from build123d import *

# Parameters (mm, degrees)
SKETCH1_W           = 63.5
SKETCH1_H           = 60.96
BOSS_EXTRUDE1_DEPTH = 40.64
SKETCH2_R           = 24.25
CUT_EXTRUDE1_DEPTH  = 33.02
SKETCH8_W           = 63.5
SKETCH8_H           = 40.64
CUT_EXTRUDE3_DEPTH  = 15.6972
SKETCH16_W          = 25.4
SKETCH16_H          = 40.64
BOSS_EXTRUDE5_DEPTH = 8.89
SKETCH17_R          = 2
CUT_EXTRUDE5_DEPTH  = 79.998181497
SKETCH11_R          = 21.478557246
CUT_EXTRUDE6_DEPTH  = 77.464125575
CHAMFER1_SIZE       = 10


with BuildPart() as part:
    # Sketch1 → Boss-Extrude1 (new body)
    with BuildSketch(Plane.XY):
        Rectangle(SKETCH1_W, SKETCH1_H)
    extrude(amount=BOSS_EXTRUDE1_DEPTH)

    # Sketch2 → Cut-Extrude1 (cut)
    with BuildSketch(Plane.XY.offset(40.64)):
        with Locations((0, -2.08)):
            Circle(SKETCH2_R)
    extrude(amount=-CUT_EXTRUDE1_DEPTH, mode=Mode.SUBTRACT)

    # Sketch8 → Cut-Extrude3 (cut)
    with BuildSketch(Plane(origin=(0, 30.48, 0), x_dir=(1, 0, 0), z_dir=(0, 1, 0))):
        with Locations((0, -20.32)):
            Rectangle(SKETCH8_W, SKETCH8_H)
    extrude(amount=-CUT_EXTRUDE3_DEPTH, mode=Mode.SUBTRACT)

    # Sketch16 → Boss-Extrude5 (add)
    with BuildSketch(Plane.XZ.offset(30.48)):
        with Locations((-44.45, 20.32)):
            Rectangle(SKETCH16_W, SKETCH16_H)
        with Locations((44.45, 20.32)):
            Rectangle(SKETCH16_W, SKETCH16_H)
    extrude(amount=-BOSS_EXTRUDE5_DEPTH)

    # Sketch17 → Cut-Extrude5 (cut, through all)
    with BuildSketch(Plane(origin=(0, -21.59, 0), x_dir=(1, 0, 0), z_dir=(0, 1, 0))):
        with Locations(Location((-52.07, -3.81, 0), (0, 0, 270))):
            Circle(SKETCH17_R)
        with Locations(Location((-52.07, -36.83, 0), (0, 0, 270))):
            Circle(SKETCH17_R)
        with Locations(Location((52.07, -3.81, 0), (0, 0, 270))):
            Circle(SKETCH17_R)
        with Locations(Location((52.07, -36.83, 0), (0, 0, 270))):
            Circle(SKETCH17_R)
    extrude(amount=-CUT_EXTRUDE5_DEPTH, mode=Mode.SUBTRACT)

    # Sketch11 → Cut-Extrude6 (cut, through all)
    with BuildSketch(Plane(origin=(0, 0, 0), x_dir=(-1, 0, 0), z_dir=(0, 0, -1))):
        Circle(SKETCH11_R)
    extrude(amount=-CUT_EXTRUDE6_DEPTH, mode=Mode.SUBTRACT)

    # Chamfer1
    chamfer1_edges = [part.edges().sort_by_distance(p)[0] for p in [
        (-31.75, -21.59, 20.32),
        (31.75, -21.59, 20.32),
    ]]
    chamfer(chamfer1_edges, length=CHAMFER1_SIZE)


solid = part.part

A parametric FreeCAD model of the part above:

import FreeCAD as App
import Part
import Sketcher
Q = App.Units.Quantity


def edges_at(feature, points):
    """Names of the edges that pass closest to the given points."""
    edges = feature.Shape.Edges
    near = lambda p: min(range(len(edges)), key=lambda i: edges[i].distToShape(Part.Vertex(*p))[0])
    return sorted({f"Edge{near(p) + 1}" for p in points})


def add_polygon(sketch, points):
    """Adds a closed chain of lines whose ends are joined by coincident constraints."""
    first, n = sketch.GeometryCount, len(points)
    for a, b in zip(points, points[1:] + points[:1]):
        sketch.addGeometry(Part.LineSegment(App.Vector(*a, 0), App.Vector(*b, 0)), False)
    for i in range(n):
        sketch.addConstraint(Sketcher.Constraint("Coincident", first + i, 2, first + (i + 1) % n, 1))

doc = App.newDocument("Part")
body = doc.addObject("PartDesign::Body", "Body")

sketch1 = doc.addObject("Sketcher::SketchObject", "Sketch")
body.addObject(sketch1)
sketch1.AttachmentSupport = (doc.XY_Plane, [""])
sketch1.MapMode = "FlatFace"
add_polygon(sketch1, [(-32, 30), (-32, -30), (32, -30), (32, 30)])
sketch1.addConstraint([
    Sketcher.Constraint("Vertical", 0),
    Sketcher.Constraint("Horizontal", 1),
    Sketcher.Constraint("Vertical", 2),
    Sketcher.Constraint("Horizontal", 3),
    Sketcher.Constraint("Symmetric", 0, 2, 2, 2, -1, 1),
    Sketcher.Constraint("DistanceX", 1, 1, 1, 2, Q("2.5 in")),
    Sketcher.Constraint("DistanceY", 0, 2, 0, 1, Q("2.4 in")),
])
pad1 = doc.addObject("PartDesign::Pad", "Pad")
body.addObject(pad1)
pad1.Profile = sketch1
pad1.Length = Q("1.6 in")

sketch2 = doc.addObject("Sketcher::SketchObject", "Sketch001")
body.addObject(sketch2)
sketch2.AttachmentSupport = (doc.XY_Plane, [""])
sketch2.MapMode = "FlatFace"
sketch2.AttachmentOffset = App.Placement(App.Vector(0, 0, 1.6 * 25.4), App.Rotation())
sketch2.addGeometry(Part.Circle(App.Vector(0, -2, 0), App.Vector(0, 0, 1), 24), False)
sketch2.addConstraint([
    Sketcher.Constraint("PointOnObject", 0, 3, -2),
    Sketcher.Constraint("Diameter", 0, Q("48.5 mm")),
    Sketcher.Constraint("DistanceY", 0, 3, -1, 1, Q("2.08 mm")),
])
pocket1 = doc.addObject("PartDesign::Pocket", "Pocket")
body.addObject(pocket1)
pocket1.Profile = sketch2
pocket1.Length = Q("1.3 in")

sketch3 = doc.addObject("Sketcher::SketchObject", "Sketch002")
body.addObject(sketch3)
sketch3.AttachmentSupport = (doc.XZ_Plane, [""])
sketch3.MapMode = "FlatFace"
sketch3.AttachmentOffset = App.Placement(App.Vector(0, 0, -1.2 * 25.4), App.Rotation())
add_polygon(sketch3, [(-32, 0), (-32, 41), (32, 41), (32, 0)])
sketch3.addConstraint([
    Sketcher.Constraint("Vertical", 0),
    Sketcher.Constraint("Horizontal", 1),
    Sketcher.Constraint("Vertical", 2),
    Sketcher.Constraint("Horizontal", 3),
    Sketcher.Constraint("Symmetric", 2, 2, 3, 2, -1, 1),
    Sketcher.Constraint("DistanceX", 1, 1, 1, 2, Q("2.5 in")),
    Sketcher.Constraint("DistanceY", 0, 1, 0, 2, Q("1.6 in")),
])
pocket2 = doc.addObject("PartDesign::Pocket", "Pocket001")
body.addObject(pocket2)
pocket2.Profile = sketch3
pocket2.Length = Q("0.618 in")
pocket2.Reversed = True

sketch4 = doc.addObject("Sketcher::SketchObject", "Sketch003")
body.addObject(sketch4)
sketch4.AttachmentSupport = (doc.XZ_Plane, [""])
sketch4.MapMode = "FlatFace"
sketch4.AttachmentOffset = App.Placement(App.Vector(0, 0, 1.2 * 25.4), App.Rotation())
add_polygon(sketch4, [(-57, 41), (-57, 0), (-32, 0), (-32, 41)])
add_polygon(sketch4, [(32, 41), (32, 0), (57, 0), (57, 41)])
sketch4.addConstraint([
    Sketcher.Constraint("Vertical", 0),
    Sketcher.Constraint("Horizontal", 1),
    Sketcher.Constraint("Vertical", 2),
    Sketcher.Constraint("Horizontal", 3),
    Sketcher.Constraint("Vertical", 4),
    Sketcher.Constraint("Horizontal", 5),
    Sketcher.Constraint("Vertical", 6),
    Sketcher.Constraint("Horizontal", 7),
    Sketcher.Constraint("Symmetric", 1, 2, 4, 2, -1, 1),
    Sketcher.Constraint("Symmetric", 0, 2, 5, 2, -2),
    Sketcher.Constraint("Horizontal", 3, 2, 6, 2),
    Sketcher.Constraint("DistanceX", 1, 1, 1, 2, Q("1 in")),
    Sketcher.Constraint("DistanceY", 0, 2, 0, 1, Q("1.6 in")),
    Sketcher.Constraint("DistanceX", 1, 2, 4, 2, Q("2.5 in")),
])
pad2 = doc.addObject("PartDesign::Pad", "Pad001")
body.addObject(pad2)
pad2.Profile = sketch4
pad2.Length = Q("0.35 in")
pad2.Reversed = True

sketch5 = doc.addObject("Sketcher::SketchObject", "Sketch004")
body.addObject(sketch5)
sketch5.AttachmentSupport = (doc.XZ_Plane, [""])
sketch5.MapMode = "FlatFace"
sketch5.AttachmentOffset = App.Placement(App.Vector(0, 0, 0.85 * 25.4), App.Rotation())
sketch5.addGeometry([
    Part.Circle(App.Vector(-52.1, 3.8, 0), App.Vector(0, 0, 1), 2),
    Part.Circle(App.Vector(-52.1, 36.8, 0), App.Vector(0, 0, 1), 2),
    Part.Circle(App.Vector(52.1, 3.8, 0), App.Vector(0, 0, 1), 2),
    Part.Circle(App.Vector(52.1, 36.8, 0), App.Vector(0, 0, 1), 2),
], False)
sketch5.addConstraint([
    Sketcher.Constraint("Equal", 0, 1),
    Sketcher.Constraint("Equal", 1, 2),
    Sketcher.Constraint("Equal", 2, 3),
    Sketcher.Constraint("Symmetric", 0, 3, 2, 3, -2),
    Sketcher.Constraint("Symmetric", 1, 3, 3, 3, -2),
    Sketcher.Constraint("Vertical", 0, 3, 1, 3),
    Sketcher.Constraint("DistanceY", 0, 3, 1, 3, Q("1.3 in")),
    Sketcher.Constraint("DistanceX", 0, 3, 2, 3, Q("4.1 in")),
    Sketcher.Constraint("Diameter", 0, Q("4 mm")),
    Sketcher.Constraint("DistanceY", -1, 1, 0, 3, Q("0.15 in")),
])
pocket3 = doc.addObject("PartDesign::Pocket", "Pocket002")
body.addObject(pocket3)
pocket3.Profile = sketch5
pocket3.Type = "ThroughAll"
pocket3.Reversed = True

sketch6 = doc.addObject("Sketcher::SketchObject", "Sketch005")
body.addObject(sketch6)
sketch6.AttachmentSupport = (doc.XY_Plane, [""])
sketch6.MapMode = "FlatFace"
sketch6.addGeometry(Part.Circle(App.Vector(0, 0, 0), App.Vector(0, 0, 1), 21), False)
sketch6.addConstraint([
    Sketcher.Constraint("Coincident", 0, 3, -1, 1),
    Sketcher.Constraint("Diameter", 0, Q("42.957114 mm")),
])
pocket4 = doc.addObject("PartDesign::Pocket", "Pocket003")
body.addObject(pocket4)
pocket4.Profile = sketch6
pocket4.Type = "ThroughAll"
pocket4.Reversed = True
doc.recompute()

chamfer = doc.addObject("PartDesign::Chamfer", "Chamfer")
body.addObject(chamfer)
chamfer.Base = (pocket4, edges_at(pocket4, [(-31.75, -21.59, 20.32), (31.75, -21.59, 20.32)]))
chamfer.Size = 10

doc.recompute()
